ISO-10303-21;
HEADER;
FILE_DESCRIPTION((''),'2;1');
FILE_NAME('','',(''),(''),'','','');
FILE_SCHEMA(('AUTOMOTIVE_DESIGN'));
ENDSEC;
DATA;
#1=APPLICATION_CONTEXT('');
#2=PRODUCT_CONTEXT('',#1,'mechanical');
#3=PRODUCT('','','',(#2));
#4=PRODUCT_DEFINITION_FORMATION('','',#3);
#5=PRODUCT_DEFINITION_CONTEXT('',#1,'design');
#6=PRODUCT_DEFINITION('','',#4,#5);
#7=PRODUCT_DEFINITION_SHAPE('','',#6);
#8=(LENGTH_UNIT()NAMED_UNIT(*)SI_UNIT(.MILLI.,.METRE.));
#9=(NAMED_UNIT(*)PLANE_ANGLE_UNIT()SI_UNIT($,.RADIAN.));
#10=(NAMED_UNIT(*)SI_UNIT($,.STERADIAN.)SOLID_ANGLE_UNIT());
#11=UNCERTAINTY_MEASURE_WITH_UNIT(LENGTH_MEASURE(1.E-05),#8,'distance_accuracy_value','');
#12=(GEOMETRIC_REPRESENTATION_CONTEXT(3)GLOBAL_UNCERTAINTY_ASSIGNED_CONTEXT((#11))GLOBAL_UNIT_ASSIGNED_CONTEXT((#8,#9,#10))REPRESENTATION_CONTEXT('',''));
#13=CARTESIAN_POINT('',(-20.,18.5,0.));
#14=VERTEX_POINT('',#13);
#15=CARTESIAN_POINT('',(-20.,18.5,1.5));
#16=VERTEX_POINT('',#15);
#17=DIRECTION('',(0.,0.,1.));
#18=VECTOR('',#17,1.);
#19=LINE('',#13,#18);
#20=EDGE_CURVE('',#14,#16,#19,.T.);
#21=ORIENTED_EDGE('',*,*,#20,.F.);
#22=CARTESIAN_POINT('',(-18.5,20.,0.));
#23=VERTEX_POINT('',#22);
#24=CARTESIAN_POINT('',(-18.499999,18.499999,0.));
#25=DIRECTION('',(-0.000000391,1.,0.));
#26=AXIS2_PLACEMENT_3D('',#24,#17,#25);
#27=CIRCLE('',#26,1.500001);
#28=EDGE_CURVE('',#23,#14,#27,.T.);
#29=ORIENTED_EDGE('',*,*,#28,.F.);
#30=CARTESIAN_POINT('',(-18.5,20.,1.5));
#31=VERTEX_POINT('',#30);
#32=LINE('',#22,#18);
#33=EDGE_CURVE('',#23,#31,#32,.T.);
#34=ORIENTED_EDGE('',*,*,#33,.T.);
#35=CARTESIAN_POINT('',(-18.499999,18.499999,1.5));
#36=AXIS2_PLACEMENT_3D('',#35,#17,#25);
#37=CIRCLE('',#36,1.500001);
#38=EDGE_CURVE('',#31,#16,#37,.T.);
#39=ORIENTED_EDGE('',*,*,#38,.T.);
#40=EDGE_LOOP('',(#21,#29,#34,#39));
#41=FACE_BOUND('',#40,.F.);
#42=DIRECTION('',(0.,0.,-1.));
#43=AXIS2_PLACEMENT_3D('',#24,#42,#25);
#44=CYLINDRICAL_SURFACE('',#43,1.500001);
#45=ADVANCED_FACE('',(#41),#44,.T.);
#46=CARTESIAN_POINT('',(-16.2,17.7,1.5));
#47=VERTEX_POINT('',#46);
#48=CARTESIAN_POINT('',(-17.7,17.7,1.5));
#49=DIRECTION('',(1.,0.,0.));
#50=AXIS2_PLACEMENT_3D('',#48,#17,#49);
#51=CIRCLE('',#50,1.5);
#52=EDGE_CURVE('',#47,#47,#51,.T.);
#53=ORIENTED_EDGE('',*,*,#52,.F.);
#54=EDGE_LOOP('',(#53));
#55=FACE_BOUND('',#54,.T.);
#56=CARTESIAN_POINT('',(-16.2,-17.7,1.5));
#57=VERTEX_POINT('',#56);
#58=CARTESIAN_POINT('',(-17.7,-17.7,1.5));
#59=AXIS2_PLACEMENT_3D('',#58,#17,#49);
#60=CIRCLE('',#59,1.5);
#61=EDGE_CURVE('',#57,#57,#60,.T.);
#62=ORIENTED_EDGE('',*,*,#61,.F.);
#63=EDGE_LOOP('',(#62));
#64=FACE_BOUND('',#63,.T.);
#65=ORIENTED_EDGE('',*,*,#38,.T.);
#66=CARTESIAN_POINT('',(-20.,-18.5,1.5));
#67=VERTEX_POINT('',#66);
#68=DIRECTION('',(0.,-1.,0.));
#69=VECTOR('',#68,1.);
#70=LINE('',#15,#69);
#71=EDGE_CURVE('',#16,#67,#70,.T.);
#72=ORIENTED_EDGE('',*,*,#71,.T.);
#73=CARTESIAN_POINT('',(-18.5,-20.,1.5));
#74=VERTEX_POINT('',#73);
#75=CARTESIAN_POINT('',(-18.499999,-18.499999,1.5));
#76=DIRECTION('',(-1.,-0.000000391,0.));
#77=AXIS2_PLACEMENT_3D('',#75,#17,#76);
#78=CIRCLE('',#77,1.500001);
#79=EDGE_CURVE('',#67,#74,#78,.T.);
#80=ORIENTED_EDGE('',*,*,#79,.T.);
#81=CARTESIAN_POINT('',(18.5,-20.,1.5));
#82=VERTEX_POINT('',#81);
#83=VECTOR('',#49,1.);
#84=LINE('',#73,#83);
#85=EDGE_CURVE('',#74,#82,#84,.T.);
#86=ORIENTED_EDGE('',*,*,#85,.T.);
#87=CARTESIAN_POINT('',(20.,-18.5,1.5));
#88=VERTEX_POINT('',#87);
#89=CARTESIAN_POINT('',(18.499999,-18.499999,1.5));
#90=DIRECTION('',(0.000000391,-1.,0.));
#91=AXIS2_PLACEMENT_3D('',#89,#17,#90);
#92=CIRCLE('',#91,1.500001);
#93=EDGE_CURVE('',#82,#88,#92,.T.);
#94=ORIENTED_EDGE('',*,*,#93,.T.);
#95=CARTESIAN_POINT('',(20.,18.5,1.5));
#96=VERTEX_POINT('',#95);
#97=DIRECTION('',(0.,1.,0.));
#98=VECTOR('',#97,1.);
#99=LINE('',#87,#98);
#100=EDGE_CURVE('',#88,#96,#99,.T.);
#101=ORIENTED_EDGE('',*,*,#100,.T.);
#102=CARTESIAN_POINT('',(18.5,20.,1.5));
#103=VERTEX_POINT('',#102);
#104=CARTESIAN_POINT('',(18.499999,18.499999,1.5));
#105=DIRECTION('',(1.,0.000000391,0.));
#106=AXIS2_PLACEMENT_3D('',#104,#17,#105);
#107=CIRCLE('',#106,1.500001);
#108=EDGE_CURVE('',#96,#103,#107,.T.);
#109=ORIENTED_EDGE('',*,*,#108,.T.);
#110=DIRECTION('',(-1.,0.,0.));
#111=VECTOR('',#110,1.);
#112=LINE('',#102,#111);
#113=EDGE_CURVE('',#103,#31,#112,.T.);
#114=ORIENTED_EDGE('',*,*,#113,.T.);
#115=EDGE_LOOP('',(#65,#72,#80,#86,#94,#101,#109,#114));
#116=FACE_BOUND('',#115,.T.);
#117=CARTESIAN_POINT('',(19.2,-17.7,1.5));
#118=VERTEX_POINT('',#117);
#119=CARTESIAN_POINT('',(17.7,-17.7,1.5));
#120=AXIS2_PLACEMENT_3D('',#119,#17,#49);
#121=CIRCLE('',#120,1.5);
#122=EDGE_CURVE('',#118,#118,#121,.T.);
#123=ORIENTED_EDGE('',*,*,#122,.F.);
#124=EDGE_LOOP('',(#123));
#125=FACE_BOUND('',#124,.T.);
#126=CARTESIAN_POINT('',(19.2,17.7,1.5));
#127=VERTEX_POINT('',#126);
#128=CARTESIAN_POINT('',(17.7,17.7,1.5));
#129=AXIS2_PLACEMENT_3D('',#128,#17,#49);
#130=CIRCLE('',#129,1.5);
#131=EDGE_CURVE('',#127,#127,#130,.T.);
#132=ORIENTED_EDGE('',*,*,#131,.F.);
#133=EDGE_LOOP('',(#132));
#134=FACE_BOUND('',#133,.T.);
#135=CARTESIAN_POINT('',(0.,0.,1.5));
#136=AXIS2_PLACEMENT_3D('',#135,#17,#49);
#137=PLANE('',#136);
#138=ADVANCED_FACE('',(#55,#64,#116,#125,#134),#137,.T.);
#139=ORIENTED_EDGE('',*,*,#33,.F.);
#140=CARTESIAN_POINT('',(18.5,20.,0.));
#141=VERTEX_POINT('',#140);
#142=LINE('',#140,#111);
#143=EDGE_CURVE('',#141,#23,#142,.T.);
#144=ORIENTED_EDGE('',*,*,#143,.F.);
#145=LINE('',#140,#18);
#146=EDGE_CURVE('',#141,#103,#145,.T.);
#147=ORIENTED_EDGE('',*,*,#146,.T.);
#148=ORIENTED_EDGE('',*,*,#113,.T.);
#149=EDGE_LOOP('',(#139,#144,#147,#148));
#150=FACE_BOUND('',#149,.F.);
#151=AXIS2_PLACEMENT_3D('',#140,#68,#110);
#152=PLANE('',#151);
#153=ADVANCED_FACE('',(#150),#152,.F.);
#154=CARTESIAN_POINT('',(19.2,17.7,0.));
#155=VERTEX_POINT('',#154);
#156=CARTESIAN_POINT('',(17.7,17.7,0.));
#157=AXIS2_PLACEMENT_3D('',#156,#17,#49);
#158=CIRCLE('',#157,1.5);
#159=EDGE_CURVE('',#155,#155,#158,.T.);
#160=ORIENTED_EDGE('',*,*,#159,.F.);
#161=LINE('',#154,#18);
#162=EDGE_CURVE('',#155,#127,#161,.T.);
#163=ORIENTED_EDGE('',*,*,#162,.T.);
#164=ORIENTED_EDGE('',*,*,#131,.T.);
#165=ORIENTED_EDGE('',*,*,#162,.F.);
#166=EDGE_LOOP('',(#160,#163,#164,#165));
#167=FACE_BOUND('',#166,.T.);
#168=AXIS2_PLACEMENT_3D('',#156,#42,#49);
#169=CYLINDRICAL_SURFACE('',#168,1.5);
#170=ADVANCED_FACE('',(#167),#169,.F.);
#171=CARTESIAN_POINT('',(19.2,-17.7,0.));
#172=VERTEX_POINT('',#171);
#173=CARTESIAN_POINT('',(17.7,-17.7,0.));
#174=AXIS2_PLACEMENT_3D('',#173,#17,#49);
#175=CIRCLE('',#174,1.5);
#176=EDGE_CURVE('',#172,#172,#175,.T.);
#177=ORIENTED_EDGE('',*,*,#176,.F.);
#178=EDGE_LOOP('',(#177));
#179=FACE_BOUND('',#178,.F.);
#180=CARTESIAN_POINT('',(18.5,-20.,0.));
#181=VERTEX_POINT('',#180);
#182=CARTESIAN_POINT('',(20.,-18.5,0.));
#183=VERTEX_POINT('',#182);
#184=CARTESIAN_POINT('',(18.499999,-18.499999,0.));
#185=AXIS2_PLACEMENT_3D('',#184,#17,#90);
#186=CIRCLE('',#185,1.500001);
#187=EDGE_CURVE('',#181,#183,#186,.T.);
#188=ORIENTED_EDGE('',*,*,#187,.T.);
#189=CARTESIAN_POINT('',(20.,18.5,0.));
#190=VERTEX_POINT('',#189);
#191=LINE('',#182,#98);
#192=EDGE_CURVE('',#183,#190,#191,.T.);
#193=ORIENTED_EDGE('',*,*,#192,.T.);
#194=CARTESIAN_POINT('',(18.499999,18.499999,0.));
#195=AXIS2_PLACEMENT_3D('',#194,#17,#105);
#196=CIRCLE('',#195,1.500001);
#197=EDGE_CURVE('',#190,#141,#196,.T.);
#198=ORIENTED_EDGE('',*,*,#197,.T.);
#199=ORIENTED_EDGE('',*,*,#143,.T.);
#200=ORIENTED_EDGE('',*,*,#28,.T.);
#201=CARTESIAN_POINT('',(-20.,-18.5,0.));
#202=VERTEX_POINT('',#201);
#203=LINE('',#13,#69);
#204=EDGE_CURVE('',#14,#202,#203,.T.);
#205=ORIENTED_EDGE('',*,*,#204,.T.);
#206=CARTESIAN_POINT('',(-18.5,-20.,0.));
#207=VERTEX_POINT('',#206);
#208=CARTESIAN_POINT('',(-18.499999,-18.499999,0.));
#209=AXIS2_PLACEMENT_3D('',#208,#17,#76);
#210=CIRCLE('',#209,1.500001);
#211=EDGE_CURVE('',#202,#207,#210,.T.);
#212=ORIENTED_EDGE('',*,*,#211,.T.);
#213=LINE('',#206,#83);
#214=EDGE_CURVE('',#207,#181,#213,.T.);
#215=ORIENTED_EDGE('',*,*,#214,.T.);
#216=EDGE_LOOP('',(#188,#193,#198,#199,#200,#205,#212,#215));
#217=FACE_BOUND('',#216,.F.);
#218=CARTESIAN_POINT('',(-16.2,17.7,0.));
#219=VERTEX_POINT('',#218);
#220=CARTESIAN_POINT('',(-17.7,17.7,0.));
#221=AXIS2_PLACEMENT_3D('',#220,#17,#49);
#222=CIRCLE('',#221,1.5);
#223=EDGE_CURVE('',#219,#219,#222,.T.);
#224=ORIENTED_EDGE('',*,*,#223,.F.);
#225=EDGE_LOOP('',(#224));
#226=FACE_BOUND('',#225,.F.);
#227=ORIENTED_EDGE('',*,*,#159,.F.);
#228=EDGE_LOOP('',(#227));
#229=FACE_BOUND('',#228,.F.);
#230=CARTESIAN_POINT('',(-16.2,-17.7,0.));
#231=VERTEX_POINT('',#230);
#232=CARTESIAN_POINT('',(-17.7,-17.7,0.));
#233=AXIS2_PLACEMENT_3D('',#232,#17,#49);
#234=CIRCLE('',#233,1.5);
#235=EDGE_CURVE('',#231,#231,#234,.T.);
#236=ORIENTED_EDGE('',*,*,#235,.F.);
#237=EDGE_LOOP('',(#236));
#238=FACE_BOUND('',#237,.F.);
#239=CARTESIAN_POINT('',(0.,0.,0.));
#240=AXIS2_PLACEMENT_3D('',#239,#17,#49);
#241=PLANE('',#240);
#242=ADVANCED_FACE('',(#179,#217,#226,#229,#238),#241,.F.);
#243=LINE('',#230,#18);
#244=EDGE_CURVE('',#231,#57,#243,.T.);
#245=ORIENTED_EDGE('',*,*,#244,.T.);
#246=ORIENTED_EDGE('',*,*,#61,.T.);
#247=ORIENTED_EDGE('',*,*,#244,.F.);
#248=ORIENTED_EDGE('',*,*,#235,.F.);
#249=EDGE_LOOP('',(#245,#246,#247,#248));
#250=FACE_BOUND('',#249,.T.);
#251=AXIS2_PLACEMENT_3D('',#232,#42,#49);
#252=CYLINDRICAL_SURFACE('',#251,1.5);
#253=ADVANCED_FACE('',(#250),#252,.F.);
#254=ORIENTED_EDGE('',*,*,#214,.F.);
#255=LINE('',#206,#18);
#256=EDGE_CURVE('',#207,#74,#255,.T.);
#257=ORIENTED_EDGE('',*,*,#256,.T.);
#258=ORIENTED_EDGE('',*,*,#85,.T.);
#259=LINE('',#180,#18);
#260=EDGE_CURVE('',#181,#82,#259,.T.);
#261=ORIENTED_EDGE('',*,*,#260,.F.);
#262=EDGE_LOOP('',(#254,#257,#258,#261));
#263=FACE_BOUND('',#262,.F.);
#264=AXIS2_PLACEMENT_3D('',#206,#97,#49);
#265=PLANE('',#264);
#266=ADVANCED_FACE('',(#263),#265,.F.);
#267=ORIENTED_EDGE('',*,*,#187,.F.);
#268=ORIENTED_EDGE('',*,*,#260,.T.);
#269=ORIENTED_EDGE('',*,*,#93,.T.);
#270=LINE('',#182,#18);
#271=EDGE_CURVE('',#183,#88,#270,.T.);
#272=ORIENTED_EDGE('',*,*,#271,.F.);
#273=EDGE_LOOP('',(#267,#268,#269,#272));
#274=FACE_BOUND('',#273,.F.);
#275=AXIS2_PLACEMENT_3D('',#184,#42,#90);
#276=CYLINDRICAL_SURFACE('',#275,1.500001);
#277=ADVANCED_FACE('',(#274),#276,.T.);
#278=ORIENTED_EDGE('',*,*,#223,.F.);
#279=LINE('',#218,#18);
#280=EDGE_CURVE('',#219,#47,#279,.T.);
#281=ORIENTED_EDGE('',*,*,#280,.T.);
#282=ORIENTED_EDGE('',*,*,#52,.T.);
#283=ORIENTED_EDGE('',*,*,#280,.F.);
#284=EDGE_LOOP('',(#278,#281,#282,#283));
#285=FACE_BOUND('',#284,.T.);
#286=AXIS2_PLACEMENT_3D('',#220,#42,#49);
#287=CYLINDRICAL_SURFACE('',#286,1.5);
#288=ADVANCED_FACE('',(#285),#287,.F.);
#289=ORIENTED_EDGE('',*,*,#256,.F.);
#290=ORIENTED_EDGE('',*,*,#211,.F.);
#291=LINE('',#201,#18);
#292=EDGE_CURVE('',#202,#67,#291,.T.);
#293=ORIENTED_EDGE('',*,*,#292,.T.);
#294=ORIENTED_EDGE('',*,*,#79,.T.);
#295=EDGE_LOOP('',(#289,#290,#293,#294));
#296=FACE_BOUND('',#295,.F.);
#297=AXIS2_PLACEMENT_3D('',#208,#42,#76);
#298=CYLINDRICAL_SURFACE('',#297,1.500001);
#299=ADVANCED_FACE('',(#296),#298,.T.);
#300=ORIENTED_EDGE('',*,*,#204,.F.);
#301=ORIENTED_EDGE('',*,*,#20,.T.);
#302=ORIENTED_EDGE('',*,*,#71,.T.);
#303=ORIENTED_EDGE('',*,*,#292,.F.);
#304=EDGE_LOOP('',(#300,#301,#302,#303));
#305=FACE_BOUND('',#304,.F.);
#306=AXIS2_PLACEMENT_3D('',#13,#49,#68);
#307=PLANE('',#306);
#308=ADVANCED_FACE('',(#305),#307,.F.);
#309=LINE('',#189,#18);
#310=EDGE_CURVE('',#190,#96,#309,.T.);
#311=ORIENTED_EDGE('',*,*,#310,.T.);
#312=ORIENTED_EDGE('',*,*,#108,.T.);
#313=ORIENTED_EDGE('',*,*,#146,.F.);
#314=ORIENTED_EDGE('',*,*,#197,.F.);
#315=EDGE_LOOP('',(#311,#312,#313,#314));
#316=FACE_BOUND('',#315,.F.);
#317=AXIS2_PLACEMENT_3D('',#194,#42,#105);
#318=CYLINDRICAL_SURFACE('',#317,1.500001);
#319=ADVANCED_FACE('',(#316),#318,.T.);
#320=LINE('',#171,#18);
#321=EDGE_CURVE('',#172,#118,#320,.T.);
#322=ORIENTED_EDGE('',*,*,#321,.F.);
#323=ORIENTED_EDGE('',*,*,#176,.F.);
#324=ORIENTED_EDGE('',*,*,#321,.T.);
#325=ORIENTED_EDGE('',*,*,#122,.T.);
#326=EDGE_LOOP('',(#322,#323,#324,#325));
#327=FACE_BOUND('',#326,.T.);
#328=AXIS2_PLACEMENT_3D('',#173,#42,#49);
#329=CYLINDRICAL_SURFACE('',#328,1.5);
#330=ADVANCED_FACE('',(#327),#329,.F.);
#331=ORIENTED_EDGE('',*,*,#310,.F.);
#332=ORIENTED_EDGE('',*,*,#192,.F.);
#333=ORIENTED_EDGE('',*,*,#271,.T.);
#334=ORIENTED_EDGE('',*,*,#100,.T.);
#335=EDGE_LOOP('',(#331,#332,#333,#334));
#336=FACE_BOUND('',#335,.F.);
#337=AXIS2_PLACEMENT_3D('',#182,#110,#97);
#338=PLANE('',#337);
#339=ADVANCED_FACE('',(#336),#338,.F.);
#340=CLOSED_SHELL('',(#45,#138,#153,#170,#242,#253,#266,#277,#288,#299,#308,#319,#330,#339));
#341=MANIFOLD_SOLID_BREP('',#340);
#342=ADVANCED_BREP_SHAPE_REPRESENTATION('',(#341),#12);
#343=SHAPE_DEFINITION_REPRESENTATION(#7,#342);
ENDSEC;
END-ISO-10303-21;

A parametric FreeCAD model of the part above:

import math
import FreeCAD as App
import Part
import Sketcher
from FreeCAD import Vector

doc = App.newDocument("Part")
body = doc.addObject("PartDesign::Body", "Body")

# Sketch on XY plane
sketch1 = doc.addObject("Sketcher::SketchObject", "Sketch")
body.addObject(sketch1)
sketch1.AttachmentSupport = (doc.XY_Plane, [""])
sketch1.MapMode = "FlatFace"
sketch1.addGeometry([
    Part.ArcOfCircle(Part.Circle(Vector(-18.5, -18.5, 0), Vector(0, 0, 1), 1.5), math.radians(-180), math.radians(-90)),  # 0
    Part.LineSegment(Vector(-18.5, -20, 0), Vector(18.5, -20, 0)),  # 1
    Part.ArcOfCircle(Part.Circle(Vector(18.5, -18.5, 0), Vector(0, 0, 1), 1.5), math.radians(-90), math.radians(0)),  # 2
    Part.LineSegment(Vector(20, -18.5, 0), Vector(20, 18.5, 0)),  # 3
    Part.ArcOfCircle(Part.Circle(Vector(18.5, 18.5, 0), Vector(0, 0, 1), 1.5), math.radians(0), math.radians(90)),  # 4
    Part.LineSegment(Vector(18.5, 20, 0), Vector(-18.5, 20, 0)),  # 5
    Part.ArcOfCircle(Part.Circle(Vector(-18.5, 18.5, 0), Vector(0, 0, 1), 1.5), math.radians(90), math.radians(180)),  # 6
    Part.LineSegment(Vector(-20, 18.5, 0), Vector(-20, -18.5, 0)),  # 7
    Part.Circle(Vector(-17.7, -17.7, 0), Vector(0, 0, 1), 1.5),  # 8
    Part.Circle(Vector(17.7, -17.7, 0), Vector(0, 0, 1), 1.5),  # 9
    Part.Circle(Vector(-17.7, 17.7, 0), Vector(0, 0, 1), 1.5),  # 10
    Part.Circle(Vector(17.7, 17.7, 0), Vector(0, 0, 1), 1.5),  # 11
], False)
sketch1.addConstraint([
    Sketcher.Constraint("Tangent", 0, 2, 1, 1),
    Sketcher.Constraint("Tangent", 1, 2, 2, 1),
    Sketcher.Constraint("Tangent", 2, 2, 3, 1),
    Sketcher.Constraint("Tangent", 3, 2, 4, 1),
    Sketcher.Constraint("Tangent", 4, 2, 5, 1),
    Sketcher.Constraint("Tangent", 5, 2, 6, 1),
    Sketcher.Constraint("Tangent", 6, 2, 7, 1),
    Sketcher.Constraint("Tangent", 7, 2, 0, 1),
    Sketcher.Constraint("Horizontal", 1),
    Sketcher.Constraint("Vertical", 3),
    Sketcher.Constraint("Horizontal", 5),
    Sketcher.Constraint("Vertical", 7),
    Sketcher.Constraint("Equal", 0, 2),
    Sketcher.Constraint("Equal", 2, 4),
    Sketcher.Constraint("Equal", 4, 6),
    Sketcher.Constraint("Equal", 6, 8),
    Sketcher.Constraint("Equal", 8, 9),
    Sketcher.Constraint("Equal", 9, 10),
    Sketcher.Constraint("Equal", 10, 11),
    Sketcher.Constraint("Symmetric", 0, 3, 4, 3, -1, 1),
    Sketcher.Constraint("Symmetric", 9, 3, 10, 3, -1, 1),
    Sketcher.Constraint("Symmetric", 8, 3, 11, 3, -1, 1),
    Sketcher.Constraint("Symmetric", 8, 3, 9, 3, -2),
    Sketcher.Constraint("Equal", 5, 3),
    Sketcher.Constraint("Diameter", 8, 3.0),
    Sketcher.Constraint("DistanceX", 1, 1, 1, 2, 37.0),
    Sketcher.Constraint("DistanceX", 8, 3, -1, 1, 17.7),
    Sketcher.Constraint("DistanceY", 8, 3, -1, 1, 17.7),
])
pad1 = doc.addObject("PartDesign::Pad", "Pad")
body.addObject(pad1)
pad1.Profile = sketch1
pad1.Length = 1.5

doc.recompute()
